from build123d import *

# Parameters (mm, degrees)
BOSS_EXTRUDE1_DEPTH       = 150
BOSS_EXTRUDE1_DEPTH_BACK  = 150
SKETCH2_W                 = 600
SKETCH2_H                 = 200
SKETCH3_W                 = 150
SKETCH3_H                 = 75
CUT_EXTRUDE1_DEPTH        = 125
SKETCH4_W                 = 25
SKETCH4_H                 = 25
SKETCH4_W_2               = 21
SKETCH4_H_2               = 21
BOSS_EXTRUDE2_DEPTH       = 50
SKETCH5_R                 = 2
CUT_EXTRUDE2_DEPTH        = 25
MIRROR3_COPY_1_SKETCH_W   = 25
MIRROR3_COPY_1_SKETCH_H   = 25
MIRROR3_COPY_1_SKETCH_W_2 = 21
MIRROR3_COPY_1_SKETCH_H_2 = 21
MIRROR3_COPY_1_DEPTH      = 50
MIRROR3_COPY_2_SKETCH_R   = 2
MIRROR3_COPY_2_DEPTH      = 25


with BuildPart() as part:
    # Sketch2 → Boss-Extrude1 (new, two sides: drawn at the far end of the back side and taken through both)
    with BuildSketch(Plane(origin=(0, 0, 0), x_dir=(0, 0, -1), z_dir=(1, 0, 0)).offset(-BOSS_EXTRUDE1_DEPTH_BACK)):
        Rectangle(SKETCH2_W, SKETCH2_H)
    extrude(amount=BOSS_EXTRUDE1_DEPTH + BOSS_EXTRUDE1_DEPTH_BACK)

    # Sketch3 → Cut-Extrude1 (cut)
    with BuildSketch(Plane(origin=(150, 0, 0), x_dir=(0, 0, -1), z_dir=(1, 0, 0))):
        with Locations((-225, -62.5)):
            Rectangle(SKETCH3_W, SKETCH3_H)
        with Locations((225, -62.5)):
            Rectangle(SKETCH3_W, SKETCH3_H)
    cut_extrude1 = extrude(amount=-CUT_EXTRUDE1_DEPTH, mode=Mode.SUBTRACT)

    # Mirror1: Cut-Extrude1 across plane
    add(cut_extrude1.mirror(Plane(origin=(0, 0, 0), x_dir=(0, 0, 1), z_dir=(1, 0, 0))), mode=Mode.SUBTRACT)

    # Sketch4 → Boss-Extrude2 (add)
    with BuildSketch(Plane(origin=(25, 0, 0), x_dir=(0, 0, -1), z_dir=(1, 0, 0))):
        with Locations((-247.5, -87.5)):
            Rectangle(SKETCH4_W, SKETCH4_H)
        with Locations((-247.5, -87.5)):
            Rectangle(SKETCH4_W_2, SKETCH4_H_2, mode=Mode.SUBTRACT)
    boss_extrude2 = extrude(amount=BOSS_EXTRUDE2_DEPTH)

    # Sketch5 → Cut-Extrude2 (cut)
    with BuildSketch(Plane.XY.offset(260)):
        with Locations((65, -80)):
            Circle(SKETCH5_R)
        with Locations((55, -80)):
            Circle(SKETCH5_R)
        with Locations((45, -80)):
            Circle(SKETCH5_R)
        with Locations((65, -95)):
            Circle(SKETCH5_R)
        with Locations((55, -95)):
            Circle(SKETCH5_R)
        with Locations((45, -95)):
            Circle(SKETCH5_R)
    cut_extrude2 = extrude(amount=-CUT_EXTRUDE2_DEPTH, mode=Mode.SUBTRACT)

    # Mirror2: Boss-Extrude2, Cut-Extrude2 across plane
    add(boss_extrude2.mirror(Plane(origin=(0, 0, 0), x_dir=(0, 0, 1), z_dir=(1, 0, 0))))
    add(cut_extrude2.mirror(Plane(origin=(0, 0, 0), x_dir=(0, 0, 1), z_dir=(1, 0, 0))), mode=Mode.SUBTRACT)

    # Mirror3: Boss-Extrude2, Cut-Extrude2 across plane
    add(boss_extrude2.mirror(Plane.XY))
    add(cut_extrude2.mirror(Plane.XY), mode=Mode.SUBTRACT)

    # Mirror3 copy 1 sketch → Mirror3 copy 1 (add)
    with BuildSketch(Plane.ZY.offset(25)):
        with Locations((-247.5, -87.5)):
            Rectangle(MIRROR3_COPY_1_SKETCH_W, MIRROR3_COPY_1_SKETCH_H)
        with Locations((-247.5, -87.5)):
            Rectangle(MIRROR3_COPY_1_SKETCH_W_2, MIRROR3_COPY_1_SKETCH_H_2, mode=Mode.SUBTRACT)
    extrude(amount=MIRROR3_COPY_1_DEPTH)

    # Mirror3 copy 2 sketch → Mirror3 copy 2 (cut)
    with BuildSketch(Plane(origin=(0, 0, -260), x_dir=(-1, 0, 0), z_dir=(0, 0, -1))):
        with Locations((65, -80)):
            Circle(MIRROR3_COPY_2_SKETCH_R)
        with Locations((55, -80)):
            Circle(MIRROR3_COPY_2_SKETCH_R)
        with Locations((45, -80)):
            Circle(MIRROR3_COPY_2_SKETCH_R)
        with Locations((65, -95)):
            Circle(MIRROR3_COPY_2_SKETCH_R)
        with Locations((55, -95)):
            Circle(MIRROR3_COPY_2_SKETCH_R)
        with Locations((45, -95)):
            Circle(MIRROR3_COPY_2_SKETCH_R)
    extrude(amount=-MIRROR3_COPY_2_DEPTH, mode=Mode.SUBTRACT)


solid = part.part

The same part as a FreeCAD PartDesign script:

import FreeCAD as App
import Part
import Sketcher

doc = App.newDocument("Part")
params = doc.addObject("Spreadsheet::Sheet", "Params")
for row, (alias, value) in enumerate([
    ("sketch1_width", "200 mm"),
    ("sketch1_height", "600 mm"),
    ("pad1_length", "150 mm"),
    ("pad1_length2", "150 mm"),
    ("sketch2_width", "75 mm"),
    ("sketch2_height", "150 mm"),
    ("pocket1_length", "125 mm"),
    ("sketch3_width", "25 mm"),
    ("sketch3_width2", "21 mm"),
    ("pad2_length", "50 mm"),
    ("sketch4_diameter", "4 mm"),
    ("pocket2_length", "25 mm"),
    ("sketch5_width", "25 mm"),
    ("sketch5_width2", "21 mm"),
    ("pad3_length", "50 mm"),
    ("sketch6_diameter", "4 mm"),
    ("pocket3_length", "25 mm"),
], start=1):
    params.set(f"A{row}", alias)
    params.set(f"B{row}", "=" + value)
    params.setAlias(f"B{row}", alias)

body = doc.addObject("PartDesign::Body", "Body")

# Sketch on YZ plane
sketch1 = body.newObject("Sketcher::SketchObject", "Sketch")
sketch1.AttachmentSupport = (doc.getObject("YZ_Plane"), [""])
sketch1.MapMode = "FlatFace"
sketch1.addGeometry(Part.LineSegment(App.Vector(100, 300, 0), App.Vector(-100, 300, 0)), False)
sketch1.addGeometry(Part.LineSegment(App.Vector(-100, 300, 0), App.Vector(-100, -300, 0)), False)
sketch1.addGeometry(Part.LineSegment(App.Vector(-100, -300, 0), App.Vector(100, -300, 0)), False)
sketch1.addGeometry(Part.LineSegment(App.Vector(100, -300, 0), App.Vector(100, 300, 0)), False)
sketch1.addConstraint(Sketcher.Constraint("Coincident", 0, 2, 1, 1))
sketch1.addConstraint(Sketcher.Constraint("Coincident", 1, 2, 2, 1))
sketch1.addConstraint(Sketcher.Constraint("Coincident", 2, 2, 3, 1))
sketch1.addConstraint(Sketcher.Constraint("Coincident", 3, 2, 0, 1))
sketch1.addConstraint(Sketcher.Constraint("Horizontal", 0))
sketch1.addConstraint(Sketcher.Constraint("Vertical", 1))
sketch1.addConstraint(Sketcher.Constraint("Horizontal", 2))
sketch1.addConstraint(Sketcher.Constraint("Vertical", 3))
sketch1.addConstraint(Sketcher.Constraint("Symmetric", 0, 2, 2, 2, -1, 1))
sketch1.addConstraint(Sketcher.Constraint("DistanceX", 0, 2, 0, 1, 200.0))
sketch1.addConstraint(Sketcher.Constraint("DistanceY", 1, 2, 1, 1, 600.0))
sketch1.setExpression("Constraints[9]", "Params.sketch1_width")
sketch1.setExpression("Constraints[10]", "Params.sketch1_height")
pad1 = body.newObject("PartDesign::Pad", "Pad")
pad1.Profile = sketch1
pad1.Type = "TwoLengths"
pad1.setExpression("Length", "Params.pad1_length")
pad1.setExpression("Length2", "Params.pad1_length2")

# Sketch on YZ plane
sketch2 = body.newObject("Sketcher::SketchObject", "Sketch001")
sketch2.AttachmentSupport = (doc.getObject("YZ_Plane"), [""])
sketch2.MapMode = "FlatFace"
sketch2.AttachmentOffset = App.Placement(App.Vector(0, 0, 150), App.Rotation())
sketch2.addGeometry(Part.LineSegment(App.Vector(-25, 300, 0), App.Vector(-100, 300, 0)), False)
sketch2.addGeometry(Part.LineSegment(App.Vector(-100, 300, 0), App.Vector(-100, 150, 0)), False)
sketch2.addGeometry(Part.LineSegment(App.Vector(-100, 150, 0), App.Vector(-25, 150, 0)), False)
sketch2.addGeometry(Part.LineSegment(App.Vector(-25, 150, 0), App.Vector(-25, 300, 0)), False)
sketch2.addGeometry(Part.LineSegment(App.Vector(-25, -150, 0), App.Vector(-100, -150, 0)), False)
sketch2.addGeometry(Part.LineSegment(App.Vector(-100, -150, 0), App.Vector(-100, -300, 0)), False)
sketch2.addGeometry(Part.LineSegment(App.Vector(-100, -300, 0), App.Vector(-25, -300, 0)), False)
sketch2.addGeometry(Part.LineSegment(App.Vector(-25, -300, 0), App.Vector(-25, -150, 0)), False)
sketch2.addConstraint(Sketcher.Constraint("Coincident", 0, 2, 1, 1))
sketch2.addConstraint(Sketcher.Constraint("Coincident", 1, 2, 2, 1))
sketch2.addConstraint(Sketcher.Constraint("Coincident", 2, 2, 3, 1))
sketch2.addConstraint(Sketcher.Constraint("Coincident", 3, 2, 0, 1))
sketch2.addConstraint(Sketcher.Constraint("Coincident", 4, 2, 5, 1))
sketch2.addConstraint(Sketcher.Constraint("Coincident", 5, 2, 6, 1))
sketch2.addConstraint(Sketcher.Constraint("Coincident", 6, 2, 7, 1))
sketch2.addConstraint(Sketcher.Constraint("Coincident", 7, 2, 4, 1))
sketch2.addConstraint(Sketcher.Constraint("Horizontal", 0))
sketch2.addConstraint(Sketcher.Constraint("Vertical", 1))
sketch2.addConstraint(Sketcher.Constraint("Horizontal", 2))
sketch2.addConstraint(Sketcher.Constraint("Vertical", 3))
sketch2.addConstraint(Sketcher.Constraint("Horizontal", 4))
sketch2.addConstraint(Sketcher.Constraint("Vertical", 5))
sketch2.addConstraint(Sketcher.Constraint("Horizontal", 6))
sketch2.addConstraint(Sketcher.Constraint("Vertical", 7))
sketch2.addConstraint(Sketcher.Constraint("Symmetric", 1, 2, 4, 2, -1))
sketch2.addConstraint(Sketcher.Constraint("Symmetric", 3, 2, 6, 2, -1))
sketch2.addConstraint(Sketcher.Constraint("DistanceX", 0, 2, 0, 1, 75.0))
sketch2.addConstraint(Sketcher.Constraint("DistanceY", 1, 2, 1, 1, 150.0))
sketch2.addConstraint(Sketcher.Constraint("DistanceX", 0, 2, -1, 1, 100.0))
sketch2.addConstraint(Sketcher.Constraint("DistanceY", -1, 1, 0, 2, 300.0))
sketch2.setExpression("Constraints[18]", "Params.sketch2_width")
sketch2.setExpression("Constraints[19]", "Params.sketch2_height")
pocket1 = body.newObject("PartDesign::Pocket", "Pocket")
pocket1.Profile = sketch2
pocket1.setExpression("Length", "Params.pocket1_length")
doc.recompute()

mirrored = body.newObject("PartDesign::Mirrored", "Mirrored")
mirrored.Originals = [pocket1]
mirrored.MirrorPlane = (doc.getObject("YZ_Plane"), [""])
body.Tip = mirrored

# Sketch on YZ plane
sketch3 = body.newObject("Sketcher::SketchObject", "Sketch002")
sketch3.AttachmentSupport = (doc.getObject("YZ_Plane"), [""])
sketch3.MapMode = "FlatFace"
sketch3.AttachmentOffset = App.Placement(App.Vector(0, 0, 25), App.Rotation())
sketch3.addGeometry(Part.LineSegment(App.Vector(-75, 260, 0), App.Vector(-100, 260, 0)), False)
sketch3.addGeometry(Part.LineSegment(App.Vector(-100, 260, 0), App.Vector(-100, 235, 0)), False)
sketch3.addGeometry(Part.LineSegment(App.Vector(-100, 235, 0), App.Vector(-75, 235, 0)), False)
sketch3.addGeometry(Part.LineSegment(App.Vector(-75, 235, 0), App.Vector(-75, 260, 0)), False)
sketch3.addGeometry(Part.LineSegment(App.Vector(-98, 237, 0), App.Vector(-98, 258, 0)), False)
sketch3.addGeometry(Part.LineSegment(App.Vector(-98, 258, 0), App.Vector(-77, 258, 0)), False)
sketch3.addGeometry(Part.LineSegment(App.Vector(-77, 258, 0), App.Vector(-77, 237, 0)), False)
sketch3.addGeometry(Part.LineSegment(App.Vector(-77, 237, 0), App.Vector(-98, 237, 0)), False)
sketch3.addConstraint(Sketcher.Constraint("Coincident", 0, 2, 1, 1))
sketch3.addConstraint(Sketcher.Constraint("Coincident", 1, 2, 2, 1))
sketch3.addConstraint(Sketcher.Constraint("Coincident", 2, 2, 3, 1))
sketch3.addConstraint(Sketcher.Constraint("Coincident", 3, 2, 0, 1))
sketch3.addConstraint(Sketcher.Constraint("Coincident", 4, 2, 5, 1))
sketch3.addConstraint(Sketcher.Constraint("Coincident", 5, 2, 6, 1))
sketch3.addConstraint(Sketcher.Constraint("Coincident", 6, 2, 7, 1))
sketch3.addConstraint(Sketcher.Constraint("Coincident", 7, 2, 4, 1))
sketch3.addConstraint(Sketcher.Constraint("Horizontal", 0))
sketch3.addConstraint(Sketcher.Constraint("Vertical", 1))
sketch3.addConstraint(Sketcher.Constraint("Horizontal", 2))
sketch3.addConstraint(Sketcher.Constraint("Vertical", 3))
sketch3.addConstraint(Sketcher.Constraint("Vertical", 4))
sketch3.addConstraint(Sketcher.Constraint("Horizontal", 5))
sketch3.addConstraint(Sketcher.Constraint("Vertical", 6))
sketch3.addConstraint(Sketcher.Constraint("Horizontal", 7))
sketch3.addConstraint(Sketcher.Constraint("Equal", 2, 1))
sketch3.addConstraint(Sketcher.Constraint("Equal", 7, 4))
sketch3.addConstraint(Sketcher.Constraint("DistanceX", 0, 2, 0, 1, 25.0))
sketch3.addConstraint(Sketcher.Constraint("DistanceX", 5, 1, 5, 2, 21.0))
sketch3.addConstraint(Sketcher.Constraint("DistanceX", 0, 2, -1, 1, 100.0))
sketch3.addConstraint(Sketcher.Constraint("DistanceY", -1, 1, 0, 2, 260.0))
sketch3.addConstraint(Sketcher.Constraint("DistanceX", 4, 2, -1, 1, 98.0))
sketch3.addConstraint(Sketcher.Constraint("DistanceY", -1, 1, 4, 2, 258.0))
sketch3.setExpression("Constraints[18]", "Params.sketch3_width")
sketch3.setExpression("Constraints[19]", "Params.sketch3_width2")
pad2 = body.newObject("PartDesign::Pad", "Pad001")
pad2.Profile = sketch3
pad2.setExpression("Length", "Params.pad2_length")

# Sketch on XY plane
sketch4 = body.newObject("Sketcher::SketchObject", "Sketch003")
sketch4.AttachmentSupport = (doc.getObject("XY_Plane"), [""])
sketch4.MapMode = "FlatFace"
sketch4.AttachmentOffset = App.Placement(App.Vector(0, 0, 260), App.Rotation())
sketch4.addGeometry(Part.Circle(App.Vector(65, -80, 0), App.Vector(0, 0, 1), 2), False)
sketch4.addGeometry(Part.Circle(App.Vector(55, -80, 0), App.Vector(0, 0, 1), 2), False)
sketch4.addGeometry(Part.Circle(App.Vector(45, -80, 0), App.Vector(0, 0, 1), 2), False)
sketch4.addGeometry(Part.Circle(App.Vector(65, -95, 0), App.Vector(0, 0, 1), 2), False)
sketch4.addGeometry(Part.Circle(App.Vector(55, -95, 0), App.Vector(0, 0, 1), 2), False)
sketch4.addGeometry(Part.Circle(App.Vector(45, -95, 0), App.Vector(0, 0, 1), 2), False)
sketch4.addConstraint(Sketcher.Constraint("Equal", 0, 1))
sketch4.addConstraint(Sketcher.Constraint("Equal", 1, 2))
sketch4.addConstraint(Sketcher.Constraint("Equal", 2, 3))
sketch4.addConstraint(Sketcher.Constraint("Equal", 3, 4))
sketch4.addConstraint(Sketcher.Constraint("Equal", 4, 5))
sketch4.addConstraint(Sketcher.Constraint("Horizontal", 0, 3, 1, 3))
sketch4.addConstraint(Sketcher.Constraint("Horizontal", 1, 3, 2, 3))
sketch4.addConstraint(Sketcher.Constraint("Horizontal", 3, 3, 4, 3))
sketch4.addConstraint(Sketcher.Constraint("Horizontal", 4, 3, 5, 3))
sketch4.addConstraint(Sketcher.Constraint("Vertical", 0, 3, 3, 3))
sketch4.addConstraint(Sketcher.Constraint("Vertical", 1, 3, 4, 3))
sketch4.addConstraint(Sketcher.Constraint("Vertical", 2, 3, 5, 3))
sketch4.addConstraint(Sketcher.Constraint("Diameter", 0, 4.0))
sketch4.addConstraint(Sketcher.Constraint("DistanceX", -1, 1, 0, 3, 65.0))
sketch4.addConstraint(Sketcher.Constraint("DistanceY", 0, 3, -1, 1, 80.0))
sketch4.addConstraint(Sketcher.Constraint("DistanceX", -1, 1, 1, 3, 55.0))
sketch4.addConstraint(Sketcher.Constraint("DistanceX", -1, 1, 2, 3, 45.0))
sketch4.addConstraint(Sketcher.Constraint("DistanceY", 3, 3, -1, 1, 95.0))
sketch4.setExpression("Constraints[12]", "Params.sketch4_diameter")
pocket2 = body.newObject("PartDesign::Pocket", "Pocket001")
pocket2.Profile = sketch4
pocket2.setExpression("Length", "Params.pocket2_length")
doc.recompute()

mirrored2 = body.newObject("PartDesign::Mirrored", "Mirrored001")
mirrored2.Originals = [pad2, pocket2]
mirrored2.MirrorPlane = (doc.getObject("YZ_Plane"), [""])
body.Tip = mirrored2
doc.recompute()

mirrored3 = body.newObject("PartDesign::Mirrored", "Mirrored002")
mirrored3.Originals = [pad2, pocket2]
mirrored3.MirrorPlane = (doc.getObject("XY_Plane"), [""])
body.Tip = mirrored3

# Sketch on YZ plane
sketch5 = body.newObject("Sketcher::SketchObject", "Sketch004")
sketch5.AttachmentSupport = (doc.getObject("YZ_Plane"), [""])
sketch5.MapMode = "FlatFace"
sketch5.AttachmentOffset = App.Placement(App.Vector(0, 0, -25), App.Rotation())
sketch5.addGeometry(Part.LineSegment(App.Vector(-75, -260, 0), App.Vector(-100, -260, 0)), False)
sketch5.addGeometry(Part.LineSegment(App.Vector(-100, -260, 0), App.Vector(-100, -235, 0)), False)
sketch5.addGeometry(Part.LineSegment(App.Vector(-100, -235, 0), App.Vector(-75, -235, 0)), False)
sketch5.addGeometry(Part.LineSegment(App.Vector(-75, -235, 0), App.Vector(-75, -260, 0)), False)
sketch5.addGeometry(Part.LineSegment(App.Vector(-98, -237, 0), App.Vector(-98, -258, 0)), False)
sketch5.addGeometry(Part.LineSegment(App.Vector(-98, -258, 0), App.Vector(-77, -258, 0)), False)
sketch5.addGeometry(Part.LineSegment(App.Vector(-77, -258, 0), App.Vector(-77, -237, 0)), False)
sketch5.addGeometry(Part.LineSegment(App.Vector(-77, -237, 0), App.Vector(-98, -237, 0)), False)
sketch5.addConstraint(Sketcher.Constraint("Coincident", 0, 2, 1, 1))
sketch5.addConstraint(Sketcher.Constraint("Coincident", 1, 2, 2, 1))
sketch5.addConstraint(Sketcher.Constraint("Coincident", 2, 2, 3, 1))
sketch5.addConstraint(Sketcher.Constraint("Coincident", 3, 2, 0, 1))
sketch5.addConstraint(Sketcher.Constraint("Coincident", 4, 2, 5, 1))
sketch5.addConstraint(Sketcher.Constraint("Coincident", 5, 2, 6, 1))
sketch5.addConstraint(Sketcher.Constraint("Coincident", 6, 2, 7, 1))
sketch5.addConstraint(Sketcher.Constraint("Coincident", 7, 2, 4, 1))
sketch5.addConstraint(Sketcher.Constraint("Horizontal", 0))
sketch5.addConstraint(Sketcher.Constraint("Vertical", 1))
sketch5.addConstraint(Sketcher.Constraint("Horizontal", 2))
sketch5.addConstraint(Sketcher.Constraint("Vertical", 3))
sketch5.addConstraint(Sketcher.Constraint("Vertical", 4))
sketch5.addConstraint(Sketcher.Constraint("Horizontal", 5))
sketch5.addConstraint(Sketcher.Constraint("Vertical", 6))
sketch5.addConstraint(Sketcher.Constraint("Horizontal", 7))
sketch5.addConstraint(Sketcher.Constraint("Equal", 2, 1))
sketch5.addConstraint(Sketcher.Constraint("Equal", 7, 4))
sketch5.addConstraint(Sketcher.Constraint("DistanceX", 0, 2, 0, 1, 25.0))
sketch5.addConstraint(Sketcher.Constraint("DistanceX", 5, 1, 5, 2, 21.0))
sketch5.addConstraint(Sketcher.Constraint("DistanceX", 0, 2, -1, 1, 100.0))
sketch5.addConstraint(Sketcher.Constraint("DistanceY", 0, 2, -1, 1, 260.0))
sketch5.addConstraint(Sketcher.Constraint("DistanceX", 4, 2, -1, 1, 98.0))
sketch5.addConstraint(Sketcher.Constraint("DistanceY", 4, 2, -1, 1, 258.0))
sketch5.setExpression("Constraints[18]", "Params.sketch5_width")
sketch5.setExpression("Constraints[19]", "Params.sketch5_width2")
pad3 = body.newObject("PartDesign::Pad", "Pad002")
pad3.Profile = sketch5
pad3.setExpression("Length", "Params.pad3_length")
pad3.Reversed = True

# Sketch on XY plane
sketch6 = body.newObject("Sketcher::SketchObject", "Sketch005")
sketch6.AttachmentSupport = (doc.getObject("XY_Plane"), [""])
sketch6.MapMode = "FlatFace"
sketch6.AttachmentOffset = App.Placement(App.Vector(0, 0, -260), App.Rotation())
sketch6.addGeometry(Part.Circle(App.Vector(-65, -80, 0), App.Vector(0, 0, 1), 2), False)
sketch6.addGeometry(Part.Circle(App.Vector(-55, -80, 0), App.Vector(0, 0, 1), 2), False)
sketch6.addGeometry(Part.Circle(App.Vector(-45, -80, 0), App.Vector(0, 0, 1), 2), False)
sketch6.addGeometry(Part.Circle(App.Vector(-65, -95, 0), App.Vector(0, 0, 1), 2), False)
sketch6.addGeometry(Part.Circle(App.Vector(-55, -95, 0), App.Vector(0, 0, 1), 2), False)
sketch6.addGeometry(Part.Circle(App.Vector(-45, -95, 0), App.Vector(0, 0, 1), 2), False)
sketch6.addConstraint(Sketcher.Constraint("Equal", 0, 1))
sketch6.addConstraint(Sketcher.Constraint("Equal", 1, 2))
sketch6.addConstraint(Sketcher.Constraint("Equal", 2, 3))
sketch6.addConstraint(Sketcher.Constraint("Equal", 3, 4))
sketch6.addConstraint(Sketcher.Constraint("Equal", 4, 5))
sketch6.addConstraint(Sketcher.Constraint("Horizontal", 0, 3, 1, 3))
sketch6.addConstraint(Sketcher.Constraint("Horizontal", 1, 3, 2, 3))
sketch6.addConstraint(Sketcher.Constraint("Horizontal", 3, 3, 4, 3))
sketch6.addConstraint(Sketcher.Constraint("Horizontal", 4, 3, 5, 3))
sketch6.addConstraint(Sketcher.Constraint("Vertical", 0, 3, 3, 3))
sketch6.addConstraint(Sketcher.Constraint("Vertical", 1, 3, 4, 3))
sketch6.addConstraint(Sketcher.Constraint("Vertical", 2, 3, 5, 3))
sketch6.addConstraint(Sketcher.Constraint("Diameter", 0, 4.0))
sketch6.addConstraint(Sketcher.Constraint("DistanceX", 0, 3, -1, 1, 65.0))
sketch6.addConstraint(Sketcher.Constraint("DistanceY", 0, 3, -1, 1, 80.0))
sketch6.addConstraint(Sketcher.Constraint("DistanceX", 1, 3, -1, 1, 55.0))
sketch6.addConstraint(Sketcher.Constraint("DistanceX", 2, 3, -1, 1, 45.0))
sketch6.addConstraint(Sketcher.Constraint("DistanceY", 3, 3, -1, 1, 95.0))
sketch6.setExpression("Constraints[12]", "Params.sketch6_diameter")
pocket3 = body.newObject("PartDesign::Pocket", "Pocket002")
pocket3.Profile = sketch6
pocket3.setExpression("Length", "Params.pocket3_length")
pocket3.Reversed = True

doc.recompute()
